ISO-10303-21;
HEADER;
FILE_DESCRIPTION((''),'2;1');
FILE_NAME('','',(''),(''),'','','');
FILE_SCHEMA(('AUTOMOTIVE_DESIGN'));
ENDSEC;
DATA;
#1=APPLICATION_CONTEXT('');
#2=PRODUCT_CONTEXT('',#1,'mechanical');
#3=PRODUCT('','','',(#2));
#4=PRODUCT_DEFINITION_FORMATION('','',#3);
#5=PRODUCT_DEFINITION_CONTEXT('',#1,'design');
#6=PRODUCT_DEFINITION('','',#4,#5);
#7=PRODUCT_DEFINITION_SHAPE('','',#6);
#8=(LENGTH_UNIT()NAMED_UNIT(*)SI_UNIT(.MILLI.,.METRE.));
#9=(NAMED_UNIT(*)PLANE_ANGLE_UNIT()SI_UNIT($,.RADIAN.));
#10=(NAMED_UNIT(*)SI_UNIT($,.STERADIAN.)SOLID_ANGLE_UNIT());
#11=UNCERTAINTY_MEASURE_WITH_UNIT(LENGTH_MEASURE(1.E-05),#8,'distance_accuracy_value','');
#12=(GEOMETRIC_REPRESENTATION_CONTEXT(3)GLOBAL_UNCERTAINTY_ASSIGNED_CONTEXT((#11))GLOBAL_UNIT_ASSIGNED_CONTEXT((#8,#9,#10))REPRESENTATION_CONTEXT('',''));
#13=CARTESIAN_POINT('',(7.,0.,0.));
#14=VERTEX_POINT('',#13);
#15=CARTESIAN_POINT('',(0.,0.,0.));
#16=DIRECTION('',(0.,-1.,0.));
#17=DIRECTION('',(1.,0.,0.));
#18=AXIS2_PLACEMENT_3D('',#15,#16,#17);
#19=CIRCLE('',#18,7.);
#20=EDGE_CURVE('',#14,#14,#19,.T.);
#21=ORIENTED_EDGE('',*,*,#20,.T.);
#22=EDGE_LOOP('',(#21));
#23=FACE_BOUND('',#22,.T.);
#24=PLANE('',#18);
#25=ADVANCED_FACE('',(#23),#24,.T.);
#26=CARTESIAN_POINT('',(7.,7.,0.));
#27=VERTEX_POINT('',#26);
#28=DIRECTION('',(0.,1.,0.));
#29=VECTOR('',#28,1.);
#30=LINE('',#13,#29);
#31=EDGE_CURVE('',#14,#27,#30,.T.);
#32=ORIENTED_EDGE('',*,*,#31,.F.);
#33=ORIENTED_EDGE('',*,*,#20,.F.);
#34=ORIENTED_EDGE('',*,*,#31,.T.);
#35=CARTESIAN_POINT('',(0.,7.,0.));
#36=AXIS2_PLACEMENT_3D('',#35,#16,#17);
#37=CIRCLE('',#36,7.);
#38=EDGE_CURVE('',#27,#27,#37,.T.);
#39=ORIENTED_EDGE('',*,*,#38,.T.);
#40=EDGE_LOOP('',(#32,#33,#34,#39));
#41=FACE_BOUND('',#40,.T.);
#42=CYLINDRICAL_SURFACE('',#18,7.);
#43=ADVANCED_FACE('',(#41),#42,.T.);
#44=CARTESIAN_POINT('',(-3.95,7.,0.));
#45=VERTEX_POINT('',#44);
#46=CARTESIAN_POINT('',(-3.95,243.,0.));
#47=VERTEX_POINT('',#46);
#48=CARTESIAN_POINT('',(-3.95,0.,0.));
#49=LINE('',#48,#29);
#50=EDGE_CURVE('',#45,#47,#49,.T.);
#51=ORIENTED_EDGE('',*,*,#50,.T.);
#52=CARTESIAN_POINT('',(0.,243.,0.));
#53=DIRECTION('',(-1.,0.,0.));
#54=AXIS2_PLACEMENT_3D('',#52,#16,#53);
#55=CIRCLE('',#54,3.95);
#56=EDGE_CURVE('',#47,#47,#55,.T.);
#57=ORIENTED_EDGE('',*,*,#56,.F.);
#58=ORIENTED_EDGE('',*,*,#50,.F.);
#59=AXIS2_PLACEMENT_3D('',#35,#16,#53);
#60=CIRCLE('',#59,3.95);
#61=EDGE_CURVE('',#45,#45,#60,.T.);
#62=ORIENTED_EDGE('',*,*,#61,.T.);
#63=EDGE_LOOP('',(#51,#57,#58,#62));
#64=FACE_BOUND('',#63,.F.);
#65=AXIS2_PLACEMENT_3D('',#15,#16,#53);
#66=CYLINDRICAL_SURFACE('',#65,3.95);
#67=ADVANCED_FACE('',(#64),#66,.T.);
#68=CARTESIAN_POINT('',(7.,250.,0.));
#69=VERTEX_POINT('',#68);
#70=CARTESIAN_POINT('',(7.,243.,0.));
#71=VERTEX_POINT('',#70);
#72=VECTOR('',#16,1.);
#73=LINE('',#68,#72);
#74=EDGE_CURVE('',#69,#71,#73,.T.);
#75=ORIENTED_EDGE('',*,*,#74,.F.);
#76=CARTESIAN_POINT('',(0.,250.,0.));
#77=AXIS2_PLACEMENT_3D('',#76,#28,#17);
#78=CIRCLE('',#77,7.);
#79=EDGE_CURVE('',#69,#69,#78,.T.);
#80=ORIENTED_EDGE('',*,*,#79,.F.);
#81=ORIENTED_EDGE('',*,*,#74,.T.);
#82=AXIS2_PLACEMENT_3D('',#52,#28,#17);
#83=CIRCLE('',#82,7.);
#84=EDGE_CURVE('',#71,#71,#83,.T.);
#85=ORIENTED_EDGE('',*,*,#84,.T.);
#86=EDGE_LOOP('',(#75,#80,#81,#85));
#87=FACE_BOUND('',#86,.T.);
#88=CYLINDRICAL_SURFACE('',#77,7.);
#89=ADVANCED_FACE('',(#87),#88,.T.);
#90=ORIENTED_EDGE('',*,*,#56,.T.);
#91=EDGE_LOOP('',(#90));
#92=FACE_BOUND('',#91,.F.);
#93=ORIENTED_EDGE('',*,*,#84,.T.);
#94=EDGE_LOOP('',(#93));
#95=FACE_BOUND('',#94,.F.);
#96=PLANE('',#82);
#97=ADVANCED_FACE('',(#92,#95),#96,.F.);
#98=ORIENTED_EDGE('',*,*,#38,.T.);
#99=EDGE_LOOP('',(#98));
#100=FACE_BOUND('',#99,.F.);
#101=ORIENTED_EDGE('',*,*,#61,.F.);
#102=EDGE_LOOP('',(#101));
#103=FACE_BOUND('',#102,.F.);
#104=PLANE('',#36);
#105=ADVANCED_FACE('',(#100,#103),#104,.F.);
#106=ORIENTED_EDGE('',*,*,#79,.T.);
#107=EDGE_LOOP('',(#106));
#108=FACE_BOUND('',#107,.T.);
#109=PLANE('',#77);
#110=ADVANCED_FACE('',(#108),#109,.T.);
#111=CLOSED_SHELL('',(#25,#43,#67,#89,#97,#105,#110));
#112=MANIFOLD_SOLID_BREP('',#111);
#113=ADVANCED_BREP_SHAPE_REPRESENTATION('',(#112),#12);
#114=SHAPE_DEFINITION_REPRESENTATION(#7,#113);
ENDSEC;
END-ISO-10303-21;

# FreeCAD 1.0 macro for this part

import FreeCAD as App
import Part
import Sketcher

V = App.Vector
Q = App.Units.Quantity

doc = App.newDocument("Part")
body = doc.addObject("PartDesign::Body", "Body")

# Sketch on XZ plane
sketch1 = body.newObject("Sketcher::SketchObject", "Sketch")
sketch1.AttachmentSupport = (doc.getObject("XZ_Plane"), [""])
sketch1.MapMode = "FlatFace"
sketch1.addGeometry(Part.Circle(V(0, 0, 0), V(0, 0, 1), 4), False)
sketch1.addConstraint([
    Sketcher.Constraint("Coincident", 0, 3, -1, 1),
    Sketcher.Constraint("Diameter", 0, Q("7.9 mm")),
])
pad1 = body.newObject("PartDesign::Pad", "Pad")
pad1.Profile = sketch1
pad1.Length = 250
pad1.Reversed = True

# Sketch on XZ plane
sketch2 = body.newObject("Sketcher::SketchObject", "Sketch001")
sketch2.AttachmentSupport = (doc.getObject("XZ_Plane"), [""])
sketch2.MapMode = "FlatFace"
sketch2.AttachmentOffset = App.Placement(V(0, 0, -250), App.Rotation())
sketch2.addGeometry([
    Part.Circle(V(0, 0, 0), V(0, 0, 1), 7),
    Part.Circle(V(0, 0, 0), V(0, 0, 1), 4),
], False)
sketch2.addConstraint([
    Sketcher.Constraint("Coincident", 0, 3, -1, 1),
    Sketcher.Constraint("Coincident", 1, 3, -1, 1),
    Sketcher.Constraint("Diameter", 0, Q("14 mm")),
    Sketcher.Constraint("Diameter", 1, Q("7.9 mm")),
])
pad2 = body.newObject("PartDesign::Pad", "Pad001")
pad2.Profile = sketch2
pad2.Length = 7

# Sketch on XZ plane
sketch3 = body.newObject("Sketcher::SketchObject", "Sketch002")
sketch3.AttachmentSupport = (doc.getObject("XZ_Plane"), [""])
sketch3.MapMode = "FlatFace"
sketch3.addGeometry(Part.Circle(V(0, 0, 0), V(0, 0, 1), 7), False)
sketch3.addConstraint([
    Sketcher.Constraint("Coincident", 0, 3, -1, 1),
    Sketcher.Constraint("Diameter", 0, Q("14 mm")),
])
pad3 = body.newObject("PartDesign::Pad", "Pad002")
pad3.Profile = sketch3
pad3.Length = 7
pad3.Reversed = True

doc.recompute()
